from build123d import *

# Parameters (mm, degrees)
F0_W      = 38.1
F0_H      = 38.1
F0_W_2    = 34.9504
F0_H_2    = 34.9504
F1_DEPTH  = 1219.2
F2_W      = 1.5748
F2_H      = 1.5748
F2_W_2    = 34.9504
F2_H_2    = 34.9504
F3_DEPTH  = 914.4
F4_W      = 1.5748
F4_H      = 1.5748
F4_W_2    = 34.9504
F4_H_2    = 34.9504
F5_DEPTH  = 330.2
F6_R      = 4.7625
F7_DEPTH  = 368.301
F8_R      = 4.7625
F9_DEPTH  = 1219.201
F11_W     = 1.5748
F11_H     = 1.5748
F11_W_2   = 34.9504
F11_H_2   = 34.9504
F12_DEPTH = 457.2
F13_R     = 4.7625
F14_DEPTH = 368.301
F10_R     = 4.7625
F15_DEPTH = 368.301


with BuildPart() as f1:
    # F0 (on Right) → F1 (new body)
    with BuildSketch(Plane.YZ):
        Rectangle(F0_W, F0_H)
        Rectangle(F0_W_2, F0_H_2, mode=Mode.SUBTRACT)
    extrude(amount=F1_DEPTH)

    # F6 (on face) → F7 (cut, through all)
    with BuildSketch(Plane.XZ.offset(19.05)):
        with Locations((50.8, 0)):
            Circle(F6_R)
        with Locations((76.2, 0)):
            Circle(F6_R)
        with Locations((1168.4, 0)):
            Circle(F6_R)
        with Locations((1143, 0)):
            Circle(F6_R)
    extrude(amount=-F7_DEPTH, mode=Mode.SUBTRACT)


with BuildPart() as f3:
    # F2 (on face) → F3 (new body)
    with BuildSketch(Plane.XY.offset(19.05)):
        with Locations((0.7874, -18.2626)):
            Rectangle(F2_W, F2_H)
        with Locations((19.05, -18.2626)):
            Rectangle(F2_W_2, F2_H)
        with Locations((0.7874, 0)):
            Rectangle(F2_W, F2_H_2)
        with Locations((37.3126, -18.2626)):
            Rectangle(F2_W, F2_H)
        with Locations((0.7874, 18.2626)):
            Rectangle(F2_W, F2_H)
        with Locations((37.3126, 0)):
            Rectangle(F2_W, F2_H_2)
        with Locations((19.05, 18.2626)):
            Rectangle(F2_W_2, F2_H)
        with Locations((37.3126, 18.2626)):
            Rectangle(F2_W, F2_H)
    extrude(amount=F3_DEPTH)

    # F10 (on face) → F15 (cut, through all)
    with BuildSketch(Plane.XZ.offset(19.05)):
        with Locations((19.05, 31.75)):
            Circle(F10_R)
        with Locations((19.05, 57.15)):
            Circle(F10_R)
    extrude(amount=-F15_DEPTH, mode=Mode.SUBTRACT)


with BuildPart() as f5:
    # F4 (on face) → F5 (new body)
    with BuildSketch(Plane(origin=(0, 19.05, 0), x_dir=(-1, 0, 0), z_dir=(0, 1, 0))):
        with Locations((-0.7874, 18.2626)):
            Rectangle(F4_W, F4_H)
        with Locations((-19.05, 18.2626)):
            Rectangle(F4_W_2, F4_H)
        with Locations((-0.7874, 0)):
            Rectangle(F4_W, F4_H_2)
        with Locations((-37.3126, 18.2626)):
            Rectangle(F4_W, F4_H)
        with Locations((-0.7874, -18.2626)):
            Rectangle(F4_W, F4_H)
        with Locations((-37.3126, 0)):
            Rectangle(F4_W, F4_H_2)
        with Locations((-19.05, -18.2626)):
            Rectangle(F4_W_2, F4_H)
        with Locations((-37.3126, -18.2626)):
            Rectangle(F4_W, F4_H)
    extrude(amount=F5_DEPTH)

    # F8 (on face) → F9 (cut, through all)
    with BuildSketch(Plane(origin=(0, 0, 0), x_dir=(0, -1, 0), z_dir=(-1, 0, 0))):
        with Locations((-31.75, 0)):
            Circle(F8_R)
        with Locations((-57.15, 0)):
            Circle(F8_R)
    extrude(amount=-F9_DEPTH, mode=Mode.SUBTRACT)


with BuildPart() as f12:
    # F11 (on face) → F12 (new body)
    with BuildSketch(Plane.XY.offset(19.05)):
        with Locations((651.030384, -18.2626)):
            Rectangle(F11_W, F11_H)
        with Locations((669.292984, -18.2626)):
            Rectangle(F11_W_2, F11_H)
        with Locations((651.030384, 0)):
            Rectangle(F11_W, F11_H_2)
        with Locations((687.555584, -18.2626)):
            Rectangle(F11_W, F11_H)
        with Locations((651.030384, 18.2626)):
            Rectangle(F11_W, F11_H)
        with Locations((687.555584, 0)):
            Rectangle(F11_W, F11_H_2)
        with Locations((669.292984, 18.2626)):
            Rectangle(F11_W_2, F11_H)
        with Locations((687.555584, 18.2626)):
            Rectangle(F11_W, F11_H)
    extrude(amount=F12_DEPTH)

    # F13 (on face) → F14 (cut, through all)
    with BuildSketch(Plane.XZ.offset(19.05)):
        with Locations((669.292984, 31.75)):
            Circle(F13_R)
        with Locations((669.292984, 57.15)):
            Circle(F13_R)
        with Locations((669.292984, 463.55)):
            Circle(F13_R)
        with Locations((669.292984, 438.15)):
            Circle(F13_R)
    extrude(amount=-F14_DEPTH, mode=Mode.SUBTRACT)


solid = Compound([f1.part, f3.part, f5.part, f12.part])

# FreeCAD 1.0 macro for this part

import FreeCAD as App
import Part
import Sketcher
Q = App.Units.Quantity

doc = App.newDocument("Part")
body = doc.addObject("PartDesign::Body", "Body")

sketch1 = body.newObject("Sketcher::SketchObject", "Sketch")
sketch1.AttachmentSupport = (doc.getObject("YZ_Plane"), [""])
sketch1.MapMode = "FlatFace"
sketch1.addGeometry(Part.LineSegment(App.Vector(-19.05, 19.05, 0), App.Vector(-19.05, -19.05, 0)), False)
sketch1.addGeometry(Part.LineSegment(App.Vector(-19.05, -19.05, 0), App.Vector(19.05, -19.05, 0)), False)
sketch1.addGeometry(Part.LineSegment(App.Vector(19.05, -19.05, 0), App.Vector(19.05, 19.05, 0)), False)
sketch1.addGeometry(Part.LineSegment(App.Vector(19.05, 19.05, 0), App.Vector(-19.05, 19.05, 0)), False)
sketch1.addGeometry(Part.LineSegment(App.Vector(17.4752, -17.4752, 0), App.Vector(-17.4752, -17.4752, 0)), False)
sketch1.addGeometry(Part.LineSegment(App.Vector(-17.4752, -17.4752, 0), App.Vector(-17.4752, 17.4752, 0)), False)
sketch1.addGeometry(Part.LineSegment(App.Vector(-17.4752, 17.4752, 0), App.Vector(17.4752, 17.4752, 0)), False)
sketch1.addGeometry(Part.LineSegment(App.Vector(17.4752, 17.4752, 0), App.Vector(17.4752, -17.4752, 0)), False)
sketch1.addConstraint(Sketcher.Constraint("Coincident", 0, 2, 1, 1))
sketch1.addConstraint(Sketcher.Constraint("Coincident", 1, 2, 2, 1))
sketch1.addConstraint(Sketcher.Constraint("Coincident", 2, 2, 3, 1))
sketch1.addConstraint(Sketcher.Constraint("Coincident", 3, 2, 0, 1))
sketch1.addConstraint(Sketcher.Constraint("Coincident", 4, 2, 5, 1))
sketch1.addConstraint(Sketcher.Constraint("Coincident", 5, 2, 6, 1))
sketch1.addConstraint(Sketcher.Constraint("Coincident", 6, 2, 7, 1))
sketch1.addConstraint(Sketcher.Constraint("Coincident", 7, 2, 4, 1))
sketch1.addConstraint(Sketcher.Constraint("Vertical", 0))
sketch1.addConstraint(Sketcher.Constraint("Horizontal", 1))
sketch1.addConstraint(Sketcher.Constraint("Vertical", 2))
sketch1.addConstraint(Sketcher.Constraint("Horizontal", 3))
sketch1.addConstraint(Sketcher.Constraint("Horizontal", 4))
sketch1.addConstraint(Sketcher.Constraint("Vertical", 5))
sketch1.addConstraint(Sketcher.Constraint("Horizontal", 6))
sketch1.addConstraint(Sketcher.Constraint("Vertical", 7))
sketch1.addConstraint(Sketcher.Constraint("Symmetric", 0, 2, 2, 2, -1, 1))
sketch1.addConstraint(Sketcher.Constraint("Symmetric", 4, 2, 6, 2, -1, 1))
sketch1.addConstraint(Sketcher.Constraint("Equal", 3, 0))
sketch1.addConstraint(Sketcher.Constraint("Equal", 6, 5))
sketch1.addConstraint(Sketcher.Constraint("DistanceX", 1, 1, 1, 2, Q("1.5 in")))
sketch1.addConstraint(Sketcher.Constraint("DistanceX", 4, 2, 4, 1, Q("1.376 in")))
pad1 = body.newObject("PartDesign::Pad", "Pad")
pad1.Profile = sketch1
pad1.Length = Q("48 in")

sketch2 = body.newObject("Sketcher::SketchObject", "Sketch001")
sketch2.AttachmentSupport = (doc.getObject("XZ_Plane"), [""])
sketch2.MapMode = "FlatFace"
sketch2.AttachmentOffset = App.Placement(App.Vector(0, 0, 0.75 * 25.4), App.Rotation())
sketch2.addGeometry(Part.Circle(App.Vector(50.8, 0, 0), App.Vector(0, 0, 1), 4.7625), False)
sketch2.addGeometry(Part.Circle(App.Vector(76.2, 0, 0), App.Vector(0, 0, 1), 4.7625), False)
sketch2.addGeometry(Part.Circle(App.Vector(1168.4, 0, 0), App.Vector(0, 0, 1), 4.7625), False)
sketch2.addGeometry(Part.Circle(App.Vector(1143, 0, 0), App.Vector(0, 0, 1), 4.7625), False)
sketch2.addConstraint(Sketcher.Constraint("Equal", 0, 1))
sketch2.addConstraint(Sketcher.Constraint("Equal", 1, 2))
sketch2.addConstraint(Sketcher.Constraint("Equal", 2, 3))
sketch2.addConstraint(Sketcher.Constraint("PointOnObject", 0, 3, -1))
sketch2.addConstraint(Sketcher.Constraint("PointOnObject", 1, 3, -1))
sketch2.addConstraint(Sketcher.Constraint("PointOnObject", 2, 3, -1))
sketch2.addConstraint(Sketcher.Constraint("PointOnObject", 3, 3, -1))
sketch2.addConstraint(Sketcher.Constraint("Diameter", 0, Q("0.375 in")))
sketch2.addConstraint(Sketcher.Constraint("DistanceX", -1, 1, 0, 3, Q("2 in")))
sketch2.addConstraint(Sketcher.Constraint("DistanceX", -1, 1, 1, 3, Q("3 in")))
sketch2.addConstraint(Sketcher.Constraint("DistanceX", -1, 1, 2, 3, Q("46 in")))
sketch2.addConstraint(Sketcher.Constraint("DistanceX", -1, 1, 3, 3, Q("45 in")))
pocket1 = body.newObject("PartDesign::Pocket", "Pocket")
pocket1.Profile = sketch2
pocket1.Type = "ThroughAll"
body2 = doc.addObject("PartDesign::Body", "Body001")

sketch3 = body2.newObject("Sketcher::SketchObject", "Sketch002")
sketch3.AttachmentSupport = (doc.getObject("XY_Plane001"), [""])
sketch3.MapMode = "FlatFace"
sketch3.AttachmentOffset = App.Placement(App.Vector(0, 0, 0.75 * 25.4), App.Rotation())
sketch3.addGeometry(Part.LineSegment(App.Vector(38.1, -19.05, 0), App.Vector(38.1, 19.05, 0)), False)
sketch3.addGeometry(Part.LineSegment(App.Vector(38.1, 19.05, 0), App.Vector(0, 19.05, 0)), False)
sketch3.addGeometry(Part.LineSegment(App.Vector(0, 19.05, 0), App.Vector(0, -19.05, 0)), False)
sketch3.addGeometry(Part.LineSegment(App.Vector(0, -19.05, 0), App.Vector(38.1, -19.05, 0)), False)
sketch3.addGeometry(Part.LineSegment(App.Vector(36.5252, 17.4752, 0), App.Vector(36.5252, -17.4752, 0)), False)
sketch3.addGeometry(Part.LineSegment(App.Vector(36.5252, -17.4752, 0), App.Vector(1.5748, -17.4752, 0)), False)
sketch3.addGeometry(Part.LineSegment(App.Vector(1.5748, -17.4752, 0), App.Vector(1.5748, 17.4752, 0)), False)
sketch3.addGeometry(Part.LineSegment(App.Vector(1.5748, 17.4752, 0), App.Vector(36.5252, 17.4752, 0)), False)
sketch3.addConstraint(Sketcher.Constraint("Coincident", 0, 2, 1, 1))
sketch3.addConstraint(Sketcher.Constraint("Coincident", 1, 2, 2, 1))
sketch3.addConstraint(Sketcher.Constraint("Coincident", 2, 2, 3, 1))
sketch3.addConstraint(Sketcher.Constraint("Coincident", 3, 2, 0, 1))
sketch3.addConstraint(Sketcher.Constraint("Coincident", 4, 2, 5, 1))
sketch3.addConstraint(Sketcher.Constraint("Coincident", 5, 2, 6, 1))
sketch3.addConstraint(Sketcher.Constraint("Coincident", 6, 2, 7, 1))
sketch3.addConstraint(Sketcher.Constraint("Coincident", 7, 2, 4, 1))
sketch3.addConstraint(Sketcher.Constraint("Vertical", 0))
sketch3.addConstraint(Sketcher.Constraint("Horizontal", 1))
sketch3.addConstraint(Sketcher.Constraint("Vertical", 2))
sketch3.addConstraint(Sketcher.Constraint("Horizontal", 3))
sketch3.addConstraint(Sketcher.Constraint("Vertical", 4))
sketch3.addConstraint(Sketcher.Constraint("Horizontal", 5))
sketch3.addConstraint(Sketcher.Constraint("Vertical", 6))
sketch3.addConstraint(Sketcher.Constraint("Horizontal", 7))
sketch3.addConstraint(Sketcher.Constraint("Symmetric", 1, 2, 2, 2, -1, 1))
sketch3.addConstraint(Sketcher.Constraint("Equal", 3, 0))
sketch3.addConstraint(Sketcher.Constraint("Equal", 7, 4))
sketch3.addConstraint(Sketcher.Constraint("DistanceX", 1, 2, 1, 1, Q("1.5 in")))
sketch3.addConstraint(Sketcher.Constraint("DistanceX", 5, 2, 5, 1, Q("1.376 in")))
sketch3.addConstraint(Sketcher.Constraint("DistanceX", -1, 1, 4, 2, Q("1.438 in")))
sketch3.addConstraint(Sketcher.Constraint("DistanceY", 4, 2, -1, 1, Q("0.688 in")))
pad2 = body2.newObject("PartDesign::Pad", "Pad001")
pad2.Profile = sketch3
pad2.Length = Q("36 in")

sketch4 = body2.newObject("Sketcher::SketchObject", "Sketch003")
sketch4.AttachmentSupport = (doc.getObject("XZ_Plane001"), [""])
sketch4.MapMode = "FlatFace"
sketch4.AttachmentOffset = App.Placement(App.Vector(0, 0, 0.75 * 25.4), App.Rotation())
sketch4.addGeometry(Part.Circle(App.Vector(19.05, 31.75, 0), App.Vector(0, 0, 1), 4.7625), False)
sketch4.addGeometry(Part.Circle(App.Vector(19.05, 57.15, 0), App.Vector(0, 0, 1), 4.7625), False)
sketch4.addConstraint(Sketcher.Constraint("Equal", 0, 1))
sketch4.addConstraint(Sketcher.Constraint("Vertical", 0, 3, 1, 3))
sketch4.addConstraint(Sketcher.Constraint("Diameter", 0, Q("0.375 in")))
sketch4.addConstraint(Sketcher.Constraint("DistanceY", 0, 3, 1, 3, Q("1 in")))
sketch4.addConstraint(Sketcher.Constraint("DistanceX", -1, 1, 0, 3, Q("0.75 in")))
sketch4.addConstraint(Sketcher.Constraint("DistanceY", -1, 1, 0, 3, Q("1.25 in")))
pocket2 = body2.newObject("PartDesign::Pocket", "Pocket001")
pocket2.Profile = sketch4
pocket2.Type = "ThroughAll"
body3 = doc.addObject("PartDesign::Body", "Body002")

sketch5 = body3.newObject("Sketcher::SketchObject", "Sketch004")
sketch5.AttachmentSupport = (doc.getObject("XZ_Plane002"), [""])
sketch5.MapMode = "FlatFace"
sketch5.AttachmentOffset = App.Placement(App.Vector(0, 0, -0.75 * 25.4), App.Rotation())
sketch5.addGeometry(Part.LineSegment(App.Vector(38.1, 19.05, 0), App.Vector(38.1, -19.05, 0)), False)
sketch5.addGeometry(Part.LineSegment(App.Vector(38.1, -19.05, 0), App.Vector(0, -19.05, 0)), False)
sketch5.addGeometry(Part.LineSegment(App.Vector(0, -19.05, 0), App.Vector(0, 19.05, 0)), False)
sketch5.addGeometry(Part.LineSegment(App.Vector(0, 19.05, 0), App.Vector(38.1, 19.05, 0)), False)
sketch5.addGeometry(Part.LineSegment(App.Vector(1.5748, -17.4752, 0), App.Vector(36.5252, -17.4752, 0)), False)
sketch5.addGeometry(Part.LineSegment(App.Vector(36.5252, -17.4752, 0), App.Vector(36.5252, 17.4752, 0)), False)
sketch5.addGeometry(Part.LineSegment(App.Vector(36.5252, 17.4752, 0), App.Vector(1.5748, 17.4752, 0)), False)
sketch5.addGeometry(Part.LineSegment(App.Vector(1.5748, 17.4752, 0), App.Vector(1.5748, -17.4752, 0)), False)
sketch5.addConstraint(Sketcher.Constraint("Coincident", 0, 2, 1, 1))
sketch5.addConstraint(Sketcher.Constraint("Coincident", 1, 2, 2, 1))
sketch5.addConstraint(Sketcher.Constraint("Coincident", 2, 2, 3, 1))
sketch5.addConstraint(Sketcher.Constraint("Coincident", 3, 2, 0, 1))
sketch5.addConstraint(Sketcher.Constraint("Coincident", 4, 2, 5, 1))
sketch5.addConstraint(Sketcher.Constraint("Coincident", 5, 2, 6, 1))
sketch5.addConstraint(Sketcher.Constraint("Coincident", 6, 2, 7, 1))
sketch5.addConstraint(Sketcher.Constraint("Coincident", 7, 2, 4, 1))
sketch5.addConstraint(Sketcher.Constraint("Vertical", 0))
sketch5.addConstraint(Sketcher.Constraint("Horizontal", 1))
sketch5.addConstraint(Sketcher.Constraint("Vertical", 2))
sketch5.addConstraint(Sketcher.Constraint("Horizontal", 3))
sketch5.addConstraint(Sketcher.Constraint("Horizontal", 4))
sketch5.addConstraint(Sketcher.Constraint("Vertical", 5))
sketch5.addConstraint(Sketcher.Constraint("Horizontal", 6))
sketch5.addConstraint(Sketcher.Constraint("Vertical", 7))
sketch5.addConstraint(Sketcher.Constraint("Symmetric", 1, 2, 2, 2, -1, 1))
sketch5.addConstraint(Sketcher.Constraint("Equal", 3, 0))
sketch5.addConstraint(Sketcher.Constraint("Equal", 6, 5))
sketch5.addConstraint(Sketcher.Constraint("DistanceX", 1, 2, 1, 1, Q("1.5 in")))
sketch5.addConstraint(Sketcher.Constraint("DistanceX", 4, 1, 4, 2, Q("1.376 in")))
sketch5.addConstraint(Sketcher.Constraint("DistanceX", -1, 1, 4, 2, Q("1.438 in")))
sketch5.addConstraint(Sketcher.Constraint("DistanceY", 4, 2, -1, 1, Q("0.688 in")))
pad3 = body3.newObject("PartDesign::Pad", "Pad002")
pad3.Profile = sketch5
pad3.Length = Q("13 in")
pad3.Reversed = True

sketch6 = body3.newObject("Sketcher::SketchObject", "Sketch005")
sketch6.AttachmentSupport = (doc.getObject("YZ_Plane002"), [""])
sketch6.MapMode = "FlatFace"
sketch6.addGeometry(Part.Circle(App.Vector(31.75, 0, 0), App.Vector(0, 0, 1), 4.7625), False)
sketch6.addGeometry(Part.Circle(App.Vector(57.15, 0, 0), App.Vector(0, 0, 1), 4.7625), False)
sketch6.addConstraint(Sketcher.Constraint("Equal", 0, 1))
sketch6.addConstraint(Sketcher.Constraint("PointOnObject", 0, 3, -1))
sketch6.addConstraint(Sketcher.Constraint("PointOnObject", 1, 3, -1))
sketch6.addConstraint(Sketcher.Constraint("Diameter", 0, Q("0.375 in")))
sketch6.addConstraint(Sketcher.Constraint("DistanceX", 0, 3, 1, 3, Q("1 in")))
sketch6.addConstraint(Sketcher.Constraint("DistanceX", -1, 1, 0, 3, Q("1.25 in")))
pocket3 = body3.newObject("PartDesign::Pocket", "Pocket002")
pocket3.Profile = sketch6
pocket3.Type = "ThroughAll"
pocket3.Reversed = True
body4 = doc.addObject("PartDesign::Body", "Body003")

sketch7 = body4.newObject("Sketcher::SketchObject", "Sketch006")
sketch7.AttachmentSupport = (doc.getObject("XY_Plane003"), [""])
sketch7.MapMode = "FlatFace"
sketch7.AttachmentOffset = App.Placement(App.Vector(0, 0, 0.75 * 25.4), App.Rotation())
sketch7.addGeometry(Part.LineSegment(App.Vector(688.342984, -19.05, 0), App.Vector(688.342984, 19.05, 0)), False)
sketch7.addGeometry(Part.LineSegment(App.Vector(688.342984, 19.05, 0), App.Vector(650.242984, 19.05, 0)), False)
sketch7.addGeometry(Part.LineSegment(App.Vector(650.242984, 19.05, 0), App.Vector(650.242984, -19.05, 0)), False)
sketch7.addGeometry(Part.LineSegment(App.Vector(650.242984, -19.05, 0), App.Vector(688.342984, -19.05, 0)), False)
sketch7.addGeometry(Part.LineSegment(App.Vector(686.768184, 17.4752, 0), App.Vector(686.768184, -17.4752, 0)), False)
sketch7.addGeometry(Part.LineSegment(App.Vector(686.768184, -17.4752, 0), App.Vector(651.817784, -17.4752, 0)), False)
sketch7.addGeometry(Part.LineSegment(App.Vector(651.817784, -17.4752, 0), App.Vector(651.817784, 17.4752, 0)), False)
sketch7.addGeometry(Part.LineSegment(App.Vector(651.817784, 17.4752, 0), App.Vector(686.768184, 17.4752, 0)), False)
sketch7.addConstraint(Sketcher.Constraint("Coincident", 0, 2, 1, 1))
sketch7.addConstraint(Sketcher.Constraint("Coincident", 1, 2, 2, 1))
sketch7.addConstraint(Sketcher.Constraint("Coincident", 2, 2, 3, 1))
sketch7.addConstraint(Sketcher.Constraint("Coincident", 3, 2, 0, 1))
sketch7.addConstraint(Sketcher.Constraint("Coincident", 4, 2, 5, 1))
sketch7.addConstraint(Sketcher.Constraint("Coincident", 5, 2, 6, 1))
sketch7.addConstraint(Sketcher.Constraint("Coincident", 6, 2, 7, 1))
sketch7.addConstraint(Sketcher.Constraint("Coincident", 7, 2, 4, 1))
sketch7.addConstraint(Sketcher.Constraint("Vertical", 0))
sketch7.addConstraint(Sketcher.Constraint("Horizontal", 1))
sketch7.addConstraint(Sketcher.Constraint("Vertical", 2))
sketch7.addConstraint(Sketcher.Constraint("Horizontal", 3))
sketch7.addConstraint(Sketcher.Constraint("Vertical", 4))
sketch7.addConstraint(Sketcher.Constraint("Horizontal", 5))
sketch7.addConstraint(Sketcher.Constraint("Vertical", 6))
sketch7.addConstraint(Sketcher.Constraint("Horizontal", 7))
sketch7.addConstraint(Sketcher.Constraint("Equal", 3, 0))
sketch7.addConstraint(Sketcher.Constraint("Equal", 7, 4))
sketch7.addConstraint(Sketcher.Constraint("DistanceX", 1, 2, 1, 1, Q("1.5 in")))
sketch7.addConstraint(Sketcher.Constraint("DistanceX", 5, 2, 5, 1, Q("1.376 in")))
sketch7.addConstraint(Sketcher.Constraint("DistanceY", -1, 1, 0, 2, Q("0.75 in")))
sketch7.addConstraint(Sketcher.Constraint("DistanceY", 4, 2, -1, 1, Q("0.688 in")))
sketch7.addConstraint(Sketcher.Constraint("DistanceX", 4, 2, 3, 2, Q("0.062 in")))
sketch7.addConstraint(Sketcher.Constraint("DistanceX", -1, 1, 0, 2, 688.342984))
pad4 = body4.newObject("PartDesign::Pad", "Pad003")
pad4.Profile = sketch7
pad4.Length = Q("18 in")

sketch8 = body4.newObject("Sketcher::SketchObject", "Sketch007")
sketch8.AttachmentSupport = (doc.getObject("XZ_Plane003"), [""])
sketch8.MapMode = "FlatFace"
sketch8.AttachmentOffset = App.Placement(App.Vector(0, 0, 0.75 * 25.4), App.Rotation())
sketch8.addGeometry(Part.Circle(App.Vector(669.292984, 31.75, 0), App.Vector(0, 0, 1), 4.7625), False)
sketch8.addGeometry(Part.Circle(App.Vector(669.292984, 57.15, 0), App.Vector(0, 0, 1), 4.7625), False)
sketch8.addGeometry(Part.Circle(App.Vector(669.292984, 463.55, 0), App.Vector(0, 0, 1), 4.7625), False)
sketch8.addGeometry(Part.Circle(App.Vector(669.292984, 438.15, 0), App.Vector(0, 0, 1), 4.7625), False)
sketch8.addConstraint(Sketcher.Constraint("Equal", 0, 1))
sketch8.addConstraint(Sketcher.Constraint("Equal", 1, 2))
sketch8.addConstraint(Sketcher.Constraint("Equal", 2, 3))
sketch8.addConstraint(Sketcher.Constraint("Vertical", 0, 3, 1, 3))
sketch8.addConstraint(Sketcher.Constraint("Vertical", 1, 3, 2, 3))
sketch8.addConstraint(Sketcher.Constraint("Vertical", 2, 3, 3, 3))
sketch8.addConstraint(Sketcher.Constraint("Diameter", 0, Q("0.375 in")))
sketch8.addConstraint(Sketcher.Constraint("DistanceY", 0, 3, 1, 3, Q("1 in")))
sketch8.addConstraint(Sketcher.Constraint("DistanceY", 1, 3, 2, 3, Q("16 in")))
sketch8.addConstraint(Sketcher.Constraint("DistanceY", 3, 3, 2, 3, Q("1 in")))
sketch8.addConstraint(Sketcher.Constraint("DistanceY", -1, 1, 0, 3, Q("1.25 in")))
sketch8.addConstraint(Sketcher.Constraint("DistanceX", -1, 1, 0, 3, 669.292984))
pocket4 = body4.newObject("PartDesign::Pocket", "Pocket003")
pocket4.Profile = sketch8
pocket4.Type = "ThroughAll"

doc.recompute()
